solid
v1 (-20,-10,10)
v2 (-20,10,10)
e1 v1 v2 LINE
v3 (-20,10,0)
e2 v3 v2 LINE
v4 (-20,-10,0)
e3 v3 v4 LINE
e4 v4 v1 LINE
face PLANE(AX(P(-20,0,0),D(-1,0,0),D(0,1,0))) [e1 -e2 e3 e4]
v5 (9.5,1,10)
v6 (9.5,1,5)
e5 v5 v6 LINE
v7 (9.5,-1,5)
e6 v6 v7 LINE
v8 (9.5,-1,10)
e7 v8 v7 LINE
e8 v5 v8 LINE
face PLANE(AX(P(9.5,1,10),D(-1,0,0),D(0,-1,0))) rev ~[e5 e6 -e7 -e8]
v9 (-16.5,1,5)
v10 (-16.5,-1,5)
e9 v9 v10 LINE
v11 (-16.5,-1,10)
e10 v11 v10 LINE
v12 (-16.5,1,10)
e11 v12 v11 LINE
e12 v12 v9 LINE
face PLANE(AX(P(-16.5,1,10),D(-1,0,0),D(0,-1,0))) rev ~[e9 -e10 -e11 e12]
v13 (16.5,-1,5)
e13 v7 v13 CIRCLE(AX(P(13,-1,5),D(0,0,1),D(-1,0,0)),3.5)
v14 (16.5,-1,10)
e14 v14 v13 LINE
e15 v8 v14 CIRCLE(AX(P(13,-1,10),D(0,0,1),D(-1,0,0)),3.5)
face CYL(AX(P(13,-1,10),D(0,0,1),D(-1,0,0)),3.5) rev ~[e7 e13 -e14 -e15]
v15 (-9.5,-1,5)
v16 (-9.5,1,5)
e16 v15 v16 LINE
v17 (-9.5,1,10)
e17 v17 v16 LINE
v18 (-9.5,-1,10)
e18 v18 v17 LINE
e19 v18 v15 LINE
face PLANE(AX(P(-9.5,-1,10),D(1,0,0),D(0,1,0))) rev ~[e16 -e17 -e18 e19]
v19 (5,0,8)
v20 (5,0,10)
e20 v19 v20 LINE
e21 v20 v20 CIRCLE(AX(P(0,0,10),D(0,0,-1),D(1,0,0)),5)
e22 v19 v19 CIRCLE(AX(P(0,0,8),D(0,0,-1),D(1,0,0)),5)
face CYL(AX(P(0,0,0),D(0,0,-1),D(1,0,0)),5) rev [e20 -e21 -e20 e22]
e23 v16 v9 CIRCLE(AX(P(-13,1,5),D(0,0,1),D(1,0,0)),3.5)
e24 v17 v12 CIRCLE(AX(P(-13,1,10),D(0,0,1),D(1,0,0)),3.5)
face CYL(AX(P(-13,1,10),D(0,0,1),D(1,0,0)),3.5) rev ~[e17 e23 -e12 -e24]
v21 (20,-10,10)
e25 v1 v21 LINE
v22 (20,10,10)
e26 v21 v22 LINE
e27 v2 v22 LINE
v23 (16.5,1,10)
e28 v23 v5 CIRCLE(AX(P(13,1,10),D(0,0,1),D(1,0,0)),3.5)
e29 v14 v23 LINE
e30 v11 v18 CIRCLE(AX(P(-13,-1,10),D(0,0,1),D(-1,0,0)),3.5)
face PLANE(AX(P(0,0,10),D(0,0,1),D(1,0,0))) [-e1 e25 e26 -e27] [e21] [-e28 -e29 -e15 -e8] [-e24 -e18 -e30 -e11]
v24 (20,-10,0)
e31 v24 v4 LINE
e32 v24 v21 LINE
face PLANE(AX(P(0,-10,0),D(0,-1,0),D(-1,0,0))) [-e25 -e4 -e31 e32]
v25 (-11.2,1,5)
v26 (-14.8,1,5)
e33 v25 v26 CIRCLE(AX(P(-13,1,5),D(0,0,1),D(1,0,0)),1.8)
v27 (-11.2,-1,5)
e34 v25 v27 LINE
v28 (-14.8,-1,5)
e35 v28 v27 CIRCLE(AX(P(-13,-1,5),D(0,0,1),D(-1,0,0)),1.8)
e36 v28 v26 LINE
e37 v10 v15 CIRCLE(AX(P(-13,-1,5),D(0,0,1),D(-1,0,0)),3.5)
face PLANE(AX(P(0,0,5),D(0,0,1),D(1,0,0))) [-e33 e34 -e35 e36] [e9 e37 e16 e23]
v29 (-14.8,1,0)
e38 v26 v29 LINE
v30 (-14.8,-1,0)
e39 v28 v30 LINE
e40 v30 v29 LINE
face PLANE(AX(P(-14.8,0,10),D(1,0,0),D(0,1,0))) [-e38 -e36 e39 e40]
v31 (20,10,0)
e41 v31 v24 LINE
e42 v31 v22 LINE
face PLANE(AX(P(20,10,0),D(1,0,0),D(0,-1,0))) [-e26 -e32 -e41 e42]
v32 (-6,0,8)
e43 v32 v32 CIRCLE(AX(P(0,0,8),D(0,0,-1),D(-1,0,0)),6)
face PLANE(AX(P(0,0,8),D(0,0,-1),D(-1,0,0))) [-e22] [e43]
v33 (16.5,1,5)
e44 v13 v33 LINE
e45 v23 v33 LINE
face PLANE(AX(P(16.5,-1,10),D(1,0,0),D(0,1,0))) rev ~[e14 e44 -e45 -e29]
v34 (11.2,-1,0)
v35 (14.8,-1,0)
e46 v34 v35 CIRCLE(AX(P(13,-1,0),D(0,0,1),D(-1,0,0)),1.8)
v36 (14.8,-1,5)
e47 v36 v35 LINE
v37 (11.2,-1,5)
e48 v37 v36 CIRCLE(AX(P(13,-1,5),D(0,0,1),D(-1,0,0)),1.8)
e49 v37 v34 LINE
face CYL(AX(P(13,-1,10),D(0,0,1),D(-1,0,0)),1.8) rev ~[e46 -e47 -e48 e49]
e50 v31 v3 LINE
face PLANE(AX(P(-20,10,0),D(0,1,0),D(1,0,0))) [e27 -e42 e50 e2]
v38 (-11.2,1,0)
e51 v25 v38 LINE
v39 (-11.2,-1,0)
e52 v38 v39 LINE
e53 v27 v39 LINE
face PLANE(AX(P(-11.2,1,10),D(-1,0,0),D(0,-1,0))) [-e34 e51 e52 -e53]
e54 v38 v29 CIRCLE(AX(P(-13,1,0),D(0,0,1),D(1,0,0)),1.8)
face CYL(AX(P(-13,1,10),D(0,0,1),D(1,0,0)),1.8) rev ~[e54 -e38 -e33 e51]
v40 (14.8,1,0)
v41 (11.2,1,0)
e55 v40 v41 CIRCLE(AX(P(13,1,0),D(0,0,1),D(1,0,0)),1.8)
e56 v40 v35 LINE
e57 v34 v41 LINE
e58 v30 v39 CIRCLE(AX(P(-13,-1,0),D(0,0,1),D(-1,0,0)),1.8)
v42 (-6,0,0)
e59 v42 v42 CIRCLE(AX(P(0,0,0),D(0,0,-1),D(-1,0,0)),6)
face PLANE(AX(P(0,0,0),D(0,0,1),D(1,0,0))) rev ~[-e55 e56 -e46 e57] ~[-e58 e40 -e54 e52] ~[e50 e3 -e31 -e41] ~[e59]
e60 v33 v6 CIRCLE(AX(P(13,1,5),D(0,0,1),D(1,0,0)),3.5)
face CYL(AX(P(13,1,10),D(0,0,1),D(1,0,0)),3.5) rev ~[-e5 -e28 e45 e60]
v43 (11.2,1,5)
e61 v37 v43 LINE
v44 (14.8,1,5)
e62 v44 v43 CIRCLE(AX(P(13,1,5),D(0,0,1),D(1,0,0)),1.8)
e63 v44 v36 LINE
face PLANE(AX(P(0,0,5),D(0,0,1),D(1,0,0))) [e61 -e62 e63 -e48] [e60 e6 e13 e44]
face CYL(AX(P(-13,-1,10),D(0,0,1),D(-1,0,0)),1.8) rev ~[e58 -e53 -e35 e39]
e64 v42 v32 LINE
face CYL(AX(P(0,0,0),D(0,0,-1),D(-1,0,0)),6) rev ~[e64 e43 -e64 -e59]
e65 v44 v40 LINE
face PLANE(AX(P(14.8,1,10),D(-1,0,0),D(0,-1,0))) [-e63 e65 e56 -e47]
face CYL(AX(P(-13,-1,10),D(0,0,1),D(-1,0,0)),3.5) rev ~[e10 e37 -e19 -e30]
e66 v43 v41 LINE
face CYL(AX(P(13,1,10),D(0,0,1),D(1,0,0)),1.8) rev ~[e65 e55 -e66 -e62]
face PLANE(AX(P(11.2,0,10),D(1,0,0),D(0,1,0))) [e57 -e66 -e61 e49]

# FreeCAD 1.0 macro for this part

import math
import FreeCAD as App
import Part
import Sketcher
from FreeCAD import Vector


def add_polygon(sketch, points):
    """Adds a closed chain of lines whose ends are joined by coincident constraints."""
    first, n = sketch.GeometryCount, len(points)
    for a, b in zip(points, points[1:] + points[:1]):
        sketch.addGeometry(Part.LineSegment(App.Vector(*a, 0), App.Vector(*b, 0)), False)
    for i in range(n):
        sketch.addConstraint(Sketcher.Constraint("Coincident", first + i, 2, first + (i + 1) % n, 1))

doc = App.newDocument("Part")
body = doc.addObject("PartDesign::Body", "Body")

sketch1 = body.newObject("Sketcher::SketchObject", "Sketch")
sketch1.AttachmentSupport = (doc.getObject("XY_Plane"), [""])
sketch1.MapMode = "FlatFace"
add_polygon(sketch1, [(-20, 10), (-20, -10), (20, -10), (20, 10)])
sketch1.addGeometry(Part.Circle(Vector(0, 0, 0), Vector(0, 0, 1), 5), False)
sketch1.addConstraint([
    Sketcher.Constraint("Vertical", 0),
    Sketcher.Constraint("Horizontal", 1),
    Sketcher.Constraint("Vertical", 2),
    Sketcher.Constraint("Horizontal", 3),
    Sketcher.Constraint("Coincident", 4, 3, -1, 1),
    Sketcher.Constraint("Symmetric", 0, 2, 2, 2, -1, 1),
    Sketcher.Constraint("Diameter", 4, 10.0),
    Sketcher.Constraint("DistanceX", 1, 1, 1, 2, 40.0),
    Sketcher.Constraint("DistanceY", 0, 2, 0, 1, 20.0),
])
pad1 = body.newObject("PartDesign::Pad", "Pad")
pad1.Profile = sketch1
pad1.Length = 10

sketch2 = body.newObject("Sketcher::SketchObject", "Sketch001")
sketch2.AttachmentSupport = (doc.getObject("XY_Plane"), [""])
sketch2.MapMode = "FlatFace"
sketch2.addGeometry([
    Part.Circle(Vector(0, 0, 0), Vector(0, 0, 1), 6),
    Part.Circle(Vector(0, 0, 0), Vector(0, 0, 1), 5),
], False)
sketch2.addConstraint([
    Sketcher.Constraint("Coincident", 0, 3, -1, 1),
    Sketcher.Constraint("Coincident", 1, 3, -1, 1),
    Sketcher.Constraint("Diameter", 0, 12.0),
    Sketcher.Constraint("Diameter", 1, 10.0),
])
pocket1 = body.newObject("PartDesign::Pocket", "Pocket")
pocket1.Profile = sketch2
pocket1.Length = 8
pocket1.Reversed = True

sketch3 = body.newObject("Sketcher::SketchObject", "Sketch002")
sketch3.AttachmentSupport = (doc.getObject("XY_Plane"), [""])
sketch3.MapMode = "FlatFace"
sketch3.AttachmentOffset = App.Placement(Vector(0, 0, 10), App.Rotation())
sketch3.addGeometry([
    Part.ArcOfCircle(Part.Circle(Vector(-13, 1, 0), Vector(0, 0, 1), 1.8), math.radians(0), math.radians(180)),
    Part.LineSegment(Vector(-14.8, 1, 0), Vector(-14.8, -1, 0)),
    Part.ArcOfCircle(Part.Circle(Vector(-13, -1, 0), Vector(0, 0, 1), 1.8), math.radians(180), math.radians(360)),
    Part.LineSegment(Vector(-11.2, -1, 0), Vector(-11.2, 1, 0)),
    Part.ArcOfCircle(Part.Circle(Vector(13, 1, 0), Vector(0, 0, 1), 1.8), math.radians(0), math.radians(180)),
    Part.LineSegment(Vector(11.2, 1, 0), Vector(11.2, -1, 0)),
    Part.ArcOfCircle(Part.Circle(Vector(13, -1, 0), Vector(0, 0, 1), 1.8), math.radians(180), math.radians(360)),
    Part.LineSegment(Vector(14.8, -1, 0), Vector(14.8, 1, 0)),
], False)
sketch3.addConstraint([
    Sketcher.Constraint("Tangent", 0, 2, 1, 1),
    Sketcher.Constraint("Tangent", 1, 2, 2, 1),
    Sketcher.Constraint("Tangent", 2, 2, 3, 1),
    Sketcher.Constraint("Tangent", 3, 2, 0, 1),
    Sketcher.Constraint("Tangent", 4, 2, 5, 1),
    Sketcher.Constraint("Tangent", 5, 2, 6, 1),
    Sketcher.Constraint("Tangent", 6, 2, 7, 1),
    Sketcher.Constraint("Tangent", 7, 2, 4, 1),
    Sketcher.Constraint("Vertical", 1),
    Sketcher.Constraint("Vertical", 3),
    Sketcher.Constraint("Vertical", 5),
    Sketcher.Constraint("Vertical", 7),
    Sketcher.Constraint("Equal", 2, 4),
    Sketcher.Constraint("Symmetric", 2, 3, 4, 3, -1, 1),
    Sketcher.Constraint("Horizontal", 0, 3, 4, 3),
    Sketcher.Constraint("Horizontal", 2, 3, 6, 3),
    Sketcher.Constraint("Radius", 0, 1.8),
    Sketcher.Constraint("DistanceY", 1, 2, 1, 1, 2.0),
    Sketcher.Constraint("DistanceX", 0, 3, 4, 3, 26.0),
])
pocket2 = body.newObject("PartDesign::Pocket", "Pocket001")
pocket2.Profile = sketch3
pocket2.Type = "ThroughAll"

sketch4 = body.newObject("Sketcher::SketchObject", "Sketch003")
sketch4.AttachmentSupport = (doc.getObject("XY_Plane"), [""])
sketch4.MapMode = "FlatFace"
sketch4.AttachmentOffset = App.Placement(Vector(0, 0, 10), App.Rotation())
sketch4.addGeometry([
    Part.ArcOfCircle(Part.Circle(Vector(-13, 1, 0), Vector(0, 0, 1), 3.5), math.radians(0), math.radians(180)),
    Part.LineSegment(Vector(-16.5, 1, 0), Vector(-16.5, -1, 0)),
    Part.ArcOfCircle(Part.Circle(Vector(-13, -1, 0), Vector(0, 0, 1), 3.5), math.radians(180), math.radians(360)),
    Part.LineSegment(Vector(-9.5, -1, 0), Vector(-9.5, 1, 0)),
    Part.ArcOfCircle(Part.Circle(Vector(-13, -1, 0), Vector(0, 0, 1), 1.8), math.radians(180), math.radians(360)),
    Part.LineSegment(Vector(-14.8, -1, 0), Vector(-14.8, 1, 0)),
    Part.ArcOfCircle(Part.Circle(Vector(-13, 1, 0), Vector(0, 0, 1), 1.8), math.radians(0), math.radians(180)),
    Part.LineSegment(Vector(-11.2, 1, 0), Vector(-11.2, -1, 0)),
    Part.ArcOfCircle(Part.Circle(Vector(13, 1, 0), Vector(0, 0, 1), 3.5), math.radians(0), math.radians(180)),
    Part.LineSegment(Vector(9.5, 1, 0), Vector(9.5, -1, 0)),
    Part.ArcOfCircle(Part.Circle(Vector(13, -1, 0), Vector(0, 0, 1), 3.5), math.radians(180), math.radians(360)),
    Part.LineSegment(Vector(16.5, -1, 0), Vector(16.5, 1, 0)),
    Part.ArcOfCircle(Part.Circle(Vector(13, -1, 0), Vector(0, 0, 1), 1.8), math.radians(180), math.radians(360)),
    Part.LineSegment(Vector(11.2, -1, 0), Vector(11.2, 1, 0)),
    Part.ArcOfCircle(Part.Circle(Vector(13, 1, 0), Vector(0, 0, 1), 1.8), math.radians(0), math.radians(180)),
    Part.LineSegment(Vector(14.8, 1, 0), Vector(14.8, -1, 0)),
], False)
sketch4.addConstraint([
    Sketcher.Constraint("Tangent", 0, 2, 1, 1),
    Sketcher.Constraint("Tangent", 1, 2, 2, 1),
    Sketcher.Constraint("Tangent", 2, 2, 3, 1),
    Sketcher.Constraint("Tangent", 3, 2, 0, 1),
    Sketcher.Constraint("Tangent", 4, 1, 5, 1),
    Sketcher.Constraint("Tangent", 5, 2, 6, 2),
    Sketcher.Constraint("Tangent", 6, 1, 7, 1),
    Sketcher.Constraint("Tangent", 7, 2, 4, 2),
    Sketcher.Constraint("Tangent", 8, 2, 9, 1),
    Sketcher.Constraint("Tangent", 9, 2, 10, 1),
    Sketcher.Constraint("Tangent", 10, 2, 11, 1),
    Sketcher.Constraint("Tangent", 11, 2, 8, 1),
    Sketcher.Constraint("Tangent", 12, 1, 13, 1),
    Sketcher.Constraint("Tangent", 13, 2, 14, 2),
    Sketcher.Constraint("Tangent", 14, 1, 15, 1),
    Sketcher.Constraint("Tangent", 15, 2, 12, 2),
    Sketcher.Constraint("Vertical", 1),
    Sketcher.Constraint("Vertical", 3),
    Sketcher.Constraint("Vertical", 5),
    Sketcher.Constraint("Vertical", 7),
    Sketcher.Constraint("Vertical", 9),
    Sketcher.Constraint("Vertical", 11),
    Sketcher.Constraint("Vertical", 13),
    Sketcher.Constraint("Vertical", 15),
    Sketcher.Constraint("Coincident", 4, 3, 2, 3),
    Sketcher.Constraint("Coincident", 12, 3, 10, 3),
    Sketcher.Constraint("Equal", 2, 8),
    Sketcher.Constraint("Equal", 6, 12),
    Sketcher.Constraint("Symmetric", 2, 3, 8, 3, -1, 1),
    Sketcher.Constraint("Horizontal", 6, 3, 8, 3),
    Sketcher.Constraint("Horizontal", 4, 3, 10, 3),
    Sketcher.Constraint("Horizontal", 6, 3, 14, 3),
    Sketcher.Constraint("Horizontal", 14, 3, 0, 2),
    Sketcher.Constraint("Radius", 0, 3.5),
    Sketcher.Constraint("Radius", 4, 1.8),
    Sketcher.Constraint("DistanceY", 1, 2, 1, 1, 2.0),
    Sketcher.Constraint("DistanceX", 0, 3, -1, 1, 13.0),
])
pocket3 = body.newObject("PartDesign::Pocket", "Pocket002")
pocket3.Profile = sketch4
pocket3.Length = 5

doc.recompute()
